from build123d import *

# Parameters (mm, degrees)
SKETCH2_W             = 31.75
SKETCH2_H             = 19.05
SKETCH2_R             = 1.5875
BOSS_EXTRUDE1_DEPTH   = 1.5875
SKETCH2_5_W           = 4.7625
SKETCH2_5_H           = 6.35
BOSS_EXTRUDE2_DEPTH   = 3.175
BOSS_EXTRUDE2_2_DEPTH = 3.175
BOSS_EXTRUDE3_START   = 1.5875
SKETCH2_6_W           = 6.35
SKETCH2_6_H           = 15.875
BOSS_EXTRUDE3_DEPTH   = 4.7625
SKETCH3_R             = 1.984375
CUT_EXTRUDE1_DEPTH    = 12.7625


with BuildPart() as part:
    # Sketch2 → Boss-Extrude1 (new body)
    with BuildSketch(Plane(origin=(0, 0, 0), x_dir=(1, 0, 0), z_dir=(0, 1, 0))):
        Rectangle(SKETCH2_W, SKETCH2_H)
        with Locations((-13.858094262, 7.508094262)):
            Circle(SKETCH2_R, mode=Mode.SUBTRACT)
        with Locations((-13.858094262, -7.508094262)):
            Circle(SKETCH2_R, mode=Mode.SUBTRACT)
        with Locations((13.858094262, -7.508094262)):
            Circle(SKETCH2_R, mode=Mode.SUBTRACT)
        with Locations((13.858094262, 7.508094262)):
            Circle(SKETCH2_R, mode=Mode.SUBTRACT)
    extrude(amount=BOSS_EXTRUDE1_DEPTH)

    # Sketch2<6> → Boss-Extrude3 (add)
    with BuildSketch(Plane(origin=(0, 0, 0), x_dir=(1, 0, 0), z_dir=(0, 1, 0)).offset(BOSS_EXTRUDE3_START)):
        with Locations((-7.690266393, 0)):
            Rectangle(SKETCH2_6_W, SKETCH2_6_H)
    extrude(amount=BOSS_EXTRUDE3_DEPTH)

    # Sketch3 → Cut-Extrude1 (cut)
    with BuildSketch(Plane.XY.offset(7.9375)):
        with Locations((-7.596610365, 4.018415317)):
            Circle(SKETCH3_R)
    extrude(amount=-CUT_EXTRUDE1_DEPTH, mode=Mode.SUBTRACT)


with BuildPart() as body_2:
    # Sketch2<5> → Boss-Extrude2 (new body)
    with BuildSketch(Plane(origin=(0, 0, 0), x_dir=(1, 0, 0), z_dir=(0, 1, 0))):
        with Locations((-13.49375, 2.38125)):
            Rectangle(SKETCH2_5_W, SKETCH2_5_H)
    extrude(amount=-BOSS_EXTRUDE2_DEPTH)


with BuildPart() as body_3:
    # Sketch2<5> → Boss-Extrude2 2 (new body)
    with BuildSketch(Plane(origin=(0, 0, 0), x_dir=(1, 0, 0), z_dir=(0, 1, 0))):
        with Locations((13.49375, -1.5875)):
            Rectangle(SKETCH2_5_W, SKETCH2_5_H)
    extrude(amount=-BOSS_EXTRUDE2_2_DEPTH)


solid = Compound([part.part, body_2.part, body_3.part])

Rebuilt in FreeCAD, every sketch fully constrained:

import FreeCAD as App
import Part
import Sketcher

V = App.Vector
Q = App.Units.Quantity

doc = App.newDocument("Part")
body = doc.addObject("PartDesign::Body", "Body")

sketch1 = body.newObject("Sketcher::SketchObject", "Sketch")
sketch1.AttachmentSupport = (doc.getObject("XZ_Plane"), [""])
sketch1.MapMode = "FlatFace"
sketch1.addGeometry([
    Part.LineSegment(V(-15.9, -9.5, 0), V(-15.9, 9.5, 0)),
    Part.LineSegment(V(-15.9, 9.5, 0), V(15.9, 9.5, 0)),
    Part.LineSegment(V(15.9, 9.5, 0), V(15.9, -9.5, 0)),
    Part.LineSegment(V(15.9, -9.5, 0), V(-15.9, -9.5, 0)),
    Part.Circle(V(-13.9, 7.5, 0), V(0, 0, 1), 1.6),
    Part.Circle(V(13.9, 7.5, 0), V(0, 0, 1), 1.6),
    Part.Circle(V(-13.9, -7.5, 0), V(0, 0, 1), 1.6),
    Part.Circle(V(13.9, -7.5, 0), V(0, 0, 1), 1.6),
], False)
sketch1.addConstraint([
    Sketcher.Constraint("Coincident", 0, 2, 1, 1),
    Sketcher.Constraint("Coincident", 1, 2, 2, 1),
    Sketcher.Constraint("Coincident", 2, 2, 3, 1),
    Sketcher.Constraint("Coincident", 3, 2, 0, 1),
    Sketcher.Constraint("Vertical", 0),
    Sketcher.Constraint("Horizontal", 1),
    Sketcher.Constraint("Vertical", 2),
    Sketcher.Constraint("Horizontal", 3),
    Sketcher.Constraint("Equal", 4, 5),
    Sketcher.Constraint("Equal", 5, 6),
    Sketcher.Constraint("Equal", 6, 7),
    Sketcher.Constraint("Symmetric", 5, 3, 6, 3, -1, 1),
    Sketcher.Constraint("Symmetric", 4, 3, 7, 3, -1, 1),
    Sketcher.Constraint("Symmetric", 0, 2, 2, 2, -1, 1),
    Sketcher.Constraint("Symmetric", 4, 3, 5, 3, -2),
    Sketcher.Constraint("Diameter", 4, Q("0.125 in")),
    Sketcher.Constraint("DistanceX", 1, 1, 1, 2, Q("1.25 in")),
    Sketcher.Constraint("DistanceY", 0, 1, 0, 2, Q("0.75 in")),
    Sketcher.Constraint("DistanceX", 4, 3, 5, 3, 27.716189),
    Sketcher.Constraint("DistanceY", 6, 3, 4, 3, 15.016189),
])
pad1 = body.newObject("PartDesign::Pad", "Pad")
pad1.Profile = sketch1
pad1.Length = Q("0.0625 in")
pad1.Reversed = True

sketch2 = body.newObject("Sketcher::SketchObject", "Sketch001")
sketch2.AttachmentSupport = (doc.getObject("XZ_Plane"), [""])
sketch2.MapMode = "FlatFace"
sketch2.AttachmentOffset = App.Placement(V(0, 0, -0.0625 * 25.4), App.Rotation())
sketch2.addGeometry([
    Part.LineSegment(V(-11, -8, 0), V(-11, 8, 0)),
    Part.LineSegment(V(-11, 8, 0), V(-5, 8, 0)),
    Part.LineSegment(V(-5, 8, 0), V(-5, -8, 0)),
    Part.LineSegment(V(-5, -8, 0), V(-11, -8, 0)),
], False)
sketch2.addConstraint([
    Sketcher.Constraint("Coincident", 0, 2, 1, 1),
    Sketcher.Constraint("Coincident", 1, 2, 2, 1),
    Sketcher.Constraint("Coincident", 2, 2, 3, 1),
    Sketcher.Constraint("Coincident", 3, 2, 0, 1),
    Sketcher.Constraint("Vertical", 0),
    Sketcher.Constraint("Horizontal", 1),
    Sketcher.Constraint("Vertical", 2),
    Sketcher.Constraint("Horizontal", 3),
    Sketcher.Constraint("DistanceX", 1, 1, 1, 2, Q("0.25 in")),
    Sketcher.Constraint("DistanceY", 0, 1, 0, 2, Q("0.625 in")),
    Sketcher.Constraint("DistanceY", -1, 1, 0, 2, Q("0.3125 in")),
    Sketcher.Constraint("DistanceX", 0, 2, -1, 1, 10.865266),
])
pad2 = body.newObject("PartDesign::Pad", "Pad001")
pad2.Profile = sketch2
pad2.Length = Q("0.1875 in")
pad2.Reversed = True

sketch3 = body.newObject("Sketcher::SketchObject", "Sketch002")
sketch3.AttachmentSupport = (doc.getObject("XY_Plane"), [""])
sketch3.MapMode = "FlatFace"
sketch3.AttachmentOffset = App.Placement(V(0, 0, 0.3125 * 25.4), App.Rotation())
sketch3.addGeometry(Part.Circle(V(-7.6, 4, 0), V(0, 0, 1), 2), False)
sketch3.addConstraint([
    Sketcher.Constraint("Diameter", 0, Q("0.15625 in")),
    Sketcher.Constraint("DistanceX", 0, 3, -1, 1, 7.59661),
    Sketcher.Constraint("DistanceY", -1, 1, 0, 3, 4.018415),
])
pocket1 = body.newObject("PartDesign::Pocket", "Pocket")
pocket1.Profile = sketch3
pocket1.Length = 12.7625
body2 = doc.addObject("PartDesign::Body", "Body001")

sketch4 = body2.newObject("Sketcher::SketchObject", "Sketch003")
sketch4.AttachmentSupport = (doc.getObject("XZ_Plane001"), [""])
sketch4.MapMode = "FlatFace"
sketch4.addGeometry([
    Part.LineSegment(V(-15.9, -5.6, 0), V(-15.9, 0.8, 0)),
    Part.LineSegment(V(-15.9, 0.8, 0), V(-11.1, 0.8, 0)),
    Part.LineSegment(V(-11.1, 0.8, 0), V(-11.1, -5.6, 0)),
    Part.LineSegment(V(-11.1, -5.6, 0), V(-15.9, -5.6, 0)),
], False)
sketch4.addConstraint([
    Sketcher.Constraint("Coincident", 0, 2, 1, 1),
    Sketcher.Constraint("Coincident", 1, 2, 2, 1),
    Sketcher.Constraint("Coincident", 2, 2, 3, 1),
    Sketcher.Constraint("Coincident", 3, 2, 0, 1),
    Sketcher.Constraint("Vertical", 0),
    Sketcher.Constraint("Horizontal", 1),
    Sketcher.Constraint("Vertical", 2),
    Sketcher.Constraint("Horizontal", 3),
    Sketcher.Constraint("DistanceY", 0, 1, 0, 2, Q("0.25 in")),
    Sketcher.Constraint("DistanceX", 1, 1, 1, 2, Q("0.1875 in")),
    Sketcher.Constraint("DistanceX", 0, 2, -1, 1, Q("0.625 in")),
    Sketcher.Constraint("DistanceY", -1, 1, 0, 2, Q("0.03125 in")),
])
pad3 = body2.newObject("PartDesign::Pad", "Pad002")
pad3.Profile = sketch4
pad3.Length = Q("0.125 in")
body3 = doc.addObject("PartDesign::Body", "Body002")

sketch5 = body3.newObject("Sketcher::SketchObject", "Sketch004")
sketch5.AttachmentSupport = (doc.getObject("XZ_Plane002"), [""])
sketch5.MapMode = "FlatFace"
sketch5.addGeometry([
    Part.LineSegment(V(11.1, -1.6, 0), V(11.1, 4.8, 0)),
    Part.LineSegment(V(11.1, 4.8, 0), V(15.9, 4.8, 0)),
    Part.LineSegment(V(15.9, 4.8, 0), V(15.9, -1.6, 0)),
    Part.LineSegment(V(15.9, -1.6, 0), V(11.1, -1.6, 0)),
], False)
sketch5.addConstraint([
    Sketcher.Constraint("Coincident", 0, 2, 1, 1),
    Sketcher.Constraint("Coincident", 1, 2, 2, 1),
    Sketcher.Constraint("Coincident", 2, 2, 3, 1),
    Sketcher.Constraint("Coincident", 3, 2, 0, 1),
    Sketcher.Constraint("Vertical", 0),
    Sketcher.Constraint("Horizontal", 1),
    Sketcher.Constraint("Vertical", 2),
    Sketcher.Constraint("Horizontal", 3),
    Sketcher.Constraint("DistanceY", 0, 1, 0, 2, Q("0.25 in")),
    Sketcher.Constraint("DistanceX", 1, 1, 1, 2, Q("0.1875 in")),
    Sketcher.Constraint("DistanceX", -1, 1, 0, 2, Q("0.4375 in")),
    Sketcher.Constraint("DistanceY", -1, 1, 0, 2, Q("0.1875 in")),
])
pad4 = body3.newObject("PartDesign::Pad", "Pad003")
pad4.Profile = sketch5
pad4.Length = Q("0.125 in")

doc.recompute()
